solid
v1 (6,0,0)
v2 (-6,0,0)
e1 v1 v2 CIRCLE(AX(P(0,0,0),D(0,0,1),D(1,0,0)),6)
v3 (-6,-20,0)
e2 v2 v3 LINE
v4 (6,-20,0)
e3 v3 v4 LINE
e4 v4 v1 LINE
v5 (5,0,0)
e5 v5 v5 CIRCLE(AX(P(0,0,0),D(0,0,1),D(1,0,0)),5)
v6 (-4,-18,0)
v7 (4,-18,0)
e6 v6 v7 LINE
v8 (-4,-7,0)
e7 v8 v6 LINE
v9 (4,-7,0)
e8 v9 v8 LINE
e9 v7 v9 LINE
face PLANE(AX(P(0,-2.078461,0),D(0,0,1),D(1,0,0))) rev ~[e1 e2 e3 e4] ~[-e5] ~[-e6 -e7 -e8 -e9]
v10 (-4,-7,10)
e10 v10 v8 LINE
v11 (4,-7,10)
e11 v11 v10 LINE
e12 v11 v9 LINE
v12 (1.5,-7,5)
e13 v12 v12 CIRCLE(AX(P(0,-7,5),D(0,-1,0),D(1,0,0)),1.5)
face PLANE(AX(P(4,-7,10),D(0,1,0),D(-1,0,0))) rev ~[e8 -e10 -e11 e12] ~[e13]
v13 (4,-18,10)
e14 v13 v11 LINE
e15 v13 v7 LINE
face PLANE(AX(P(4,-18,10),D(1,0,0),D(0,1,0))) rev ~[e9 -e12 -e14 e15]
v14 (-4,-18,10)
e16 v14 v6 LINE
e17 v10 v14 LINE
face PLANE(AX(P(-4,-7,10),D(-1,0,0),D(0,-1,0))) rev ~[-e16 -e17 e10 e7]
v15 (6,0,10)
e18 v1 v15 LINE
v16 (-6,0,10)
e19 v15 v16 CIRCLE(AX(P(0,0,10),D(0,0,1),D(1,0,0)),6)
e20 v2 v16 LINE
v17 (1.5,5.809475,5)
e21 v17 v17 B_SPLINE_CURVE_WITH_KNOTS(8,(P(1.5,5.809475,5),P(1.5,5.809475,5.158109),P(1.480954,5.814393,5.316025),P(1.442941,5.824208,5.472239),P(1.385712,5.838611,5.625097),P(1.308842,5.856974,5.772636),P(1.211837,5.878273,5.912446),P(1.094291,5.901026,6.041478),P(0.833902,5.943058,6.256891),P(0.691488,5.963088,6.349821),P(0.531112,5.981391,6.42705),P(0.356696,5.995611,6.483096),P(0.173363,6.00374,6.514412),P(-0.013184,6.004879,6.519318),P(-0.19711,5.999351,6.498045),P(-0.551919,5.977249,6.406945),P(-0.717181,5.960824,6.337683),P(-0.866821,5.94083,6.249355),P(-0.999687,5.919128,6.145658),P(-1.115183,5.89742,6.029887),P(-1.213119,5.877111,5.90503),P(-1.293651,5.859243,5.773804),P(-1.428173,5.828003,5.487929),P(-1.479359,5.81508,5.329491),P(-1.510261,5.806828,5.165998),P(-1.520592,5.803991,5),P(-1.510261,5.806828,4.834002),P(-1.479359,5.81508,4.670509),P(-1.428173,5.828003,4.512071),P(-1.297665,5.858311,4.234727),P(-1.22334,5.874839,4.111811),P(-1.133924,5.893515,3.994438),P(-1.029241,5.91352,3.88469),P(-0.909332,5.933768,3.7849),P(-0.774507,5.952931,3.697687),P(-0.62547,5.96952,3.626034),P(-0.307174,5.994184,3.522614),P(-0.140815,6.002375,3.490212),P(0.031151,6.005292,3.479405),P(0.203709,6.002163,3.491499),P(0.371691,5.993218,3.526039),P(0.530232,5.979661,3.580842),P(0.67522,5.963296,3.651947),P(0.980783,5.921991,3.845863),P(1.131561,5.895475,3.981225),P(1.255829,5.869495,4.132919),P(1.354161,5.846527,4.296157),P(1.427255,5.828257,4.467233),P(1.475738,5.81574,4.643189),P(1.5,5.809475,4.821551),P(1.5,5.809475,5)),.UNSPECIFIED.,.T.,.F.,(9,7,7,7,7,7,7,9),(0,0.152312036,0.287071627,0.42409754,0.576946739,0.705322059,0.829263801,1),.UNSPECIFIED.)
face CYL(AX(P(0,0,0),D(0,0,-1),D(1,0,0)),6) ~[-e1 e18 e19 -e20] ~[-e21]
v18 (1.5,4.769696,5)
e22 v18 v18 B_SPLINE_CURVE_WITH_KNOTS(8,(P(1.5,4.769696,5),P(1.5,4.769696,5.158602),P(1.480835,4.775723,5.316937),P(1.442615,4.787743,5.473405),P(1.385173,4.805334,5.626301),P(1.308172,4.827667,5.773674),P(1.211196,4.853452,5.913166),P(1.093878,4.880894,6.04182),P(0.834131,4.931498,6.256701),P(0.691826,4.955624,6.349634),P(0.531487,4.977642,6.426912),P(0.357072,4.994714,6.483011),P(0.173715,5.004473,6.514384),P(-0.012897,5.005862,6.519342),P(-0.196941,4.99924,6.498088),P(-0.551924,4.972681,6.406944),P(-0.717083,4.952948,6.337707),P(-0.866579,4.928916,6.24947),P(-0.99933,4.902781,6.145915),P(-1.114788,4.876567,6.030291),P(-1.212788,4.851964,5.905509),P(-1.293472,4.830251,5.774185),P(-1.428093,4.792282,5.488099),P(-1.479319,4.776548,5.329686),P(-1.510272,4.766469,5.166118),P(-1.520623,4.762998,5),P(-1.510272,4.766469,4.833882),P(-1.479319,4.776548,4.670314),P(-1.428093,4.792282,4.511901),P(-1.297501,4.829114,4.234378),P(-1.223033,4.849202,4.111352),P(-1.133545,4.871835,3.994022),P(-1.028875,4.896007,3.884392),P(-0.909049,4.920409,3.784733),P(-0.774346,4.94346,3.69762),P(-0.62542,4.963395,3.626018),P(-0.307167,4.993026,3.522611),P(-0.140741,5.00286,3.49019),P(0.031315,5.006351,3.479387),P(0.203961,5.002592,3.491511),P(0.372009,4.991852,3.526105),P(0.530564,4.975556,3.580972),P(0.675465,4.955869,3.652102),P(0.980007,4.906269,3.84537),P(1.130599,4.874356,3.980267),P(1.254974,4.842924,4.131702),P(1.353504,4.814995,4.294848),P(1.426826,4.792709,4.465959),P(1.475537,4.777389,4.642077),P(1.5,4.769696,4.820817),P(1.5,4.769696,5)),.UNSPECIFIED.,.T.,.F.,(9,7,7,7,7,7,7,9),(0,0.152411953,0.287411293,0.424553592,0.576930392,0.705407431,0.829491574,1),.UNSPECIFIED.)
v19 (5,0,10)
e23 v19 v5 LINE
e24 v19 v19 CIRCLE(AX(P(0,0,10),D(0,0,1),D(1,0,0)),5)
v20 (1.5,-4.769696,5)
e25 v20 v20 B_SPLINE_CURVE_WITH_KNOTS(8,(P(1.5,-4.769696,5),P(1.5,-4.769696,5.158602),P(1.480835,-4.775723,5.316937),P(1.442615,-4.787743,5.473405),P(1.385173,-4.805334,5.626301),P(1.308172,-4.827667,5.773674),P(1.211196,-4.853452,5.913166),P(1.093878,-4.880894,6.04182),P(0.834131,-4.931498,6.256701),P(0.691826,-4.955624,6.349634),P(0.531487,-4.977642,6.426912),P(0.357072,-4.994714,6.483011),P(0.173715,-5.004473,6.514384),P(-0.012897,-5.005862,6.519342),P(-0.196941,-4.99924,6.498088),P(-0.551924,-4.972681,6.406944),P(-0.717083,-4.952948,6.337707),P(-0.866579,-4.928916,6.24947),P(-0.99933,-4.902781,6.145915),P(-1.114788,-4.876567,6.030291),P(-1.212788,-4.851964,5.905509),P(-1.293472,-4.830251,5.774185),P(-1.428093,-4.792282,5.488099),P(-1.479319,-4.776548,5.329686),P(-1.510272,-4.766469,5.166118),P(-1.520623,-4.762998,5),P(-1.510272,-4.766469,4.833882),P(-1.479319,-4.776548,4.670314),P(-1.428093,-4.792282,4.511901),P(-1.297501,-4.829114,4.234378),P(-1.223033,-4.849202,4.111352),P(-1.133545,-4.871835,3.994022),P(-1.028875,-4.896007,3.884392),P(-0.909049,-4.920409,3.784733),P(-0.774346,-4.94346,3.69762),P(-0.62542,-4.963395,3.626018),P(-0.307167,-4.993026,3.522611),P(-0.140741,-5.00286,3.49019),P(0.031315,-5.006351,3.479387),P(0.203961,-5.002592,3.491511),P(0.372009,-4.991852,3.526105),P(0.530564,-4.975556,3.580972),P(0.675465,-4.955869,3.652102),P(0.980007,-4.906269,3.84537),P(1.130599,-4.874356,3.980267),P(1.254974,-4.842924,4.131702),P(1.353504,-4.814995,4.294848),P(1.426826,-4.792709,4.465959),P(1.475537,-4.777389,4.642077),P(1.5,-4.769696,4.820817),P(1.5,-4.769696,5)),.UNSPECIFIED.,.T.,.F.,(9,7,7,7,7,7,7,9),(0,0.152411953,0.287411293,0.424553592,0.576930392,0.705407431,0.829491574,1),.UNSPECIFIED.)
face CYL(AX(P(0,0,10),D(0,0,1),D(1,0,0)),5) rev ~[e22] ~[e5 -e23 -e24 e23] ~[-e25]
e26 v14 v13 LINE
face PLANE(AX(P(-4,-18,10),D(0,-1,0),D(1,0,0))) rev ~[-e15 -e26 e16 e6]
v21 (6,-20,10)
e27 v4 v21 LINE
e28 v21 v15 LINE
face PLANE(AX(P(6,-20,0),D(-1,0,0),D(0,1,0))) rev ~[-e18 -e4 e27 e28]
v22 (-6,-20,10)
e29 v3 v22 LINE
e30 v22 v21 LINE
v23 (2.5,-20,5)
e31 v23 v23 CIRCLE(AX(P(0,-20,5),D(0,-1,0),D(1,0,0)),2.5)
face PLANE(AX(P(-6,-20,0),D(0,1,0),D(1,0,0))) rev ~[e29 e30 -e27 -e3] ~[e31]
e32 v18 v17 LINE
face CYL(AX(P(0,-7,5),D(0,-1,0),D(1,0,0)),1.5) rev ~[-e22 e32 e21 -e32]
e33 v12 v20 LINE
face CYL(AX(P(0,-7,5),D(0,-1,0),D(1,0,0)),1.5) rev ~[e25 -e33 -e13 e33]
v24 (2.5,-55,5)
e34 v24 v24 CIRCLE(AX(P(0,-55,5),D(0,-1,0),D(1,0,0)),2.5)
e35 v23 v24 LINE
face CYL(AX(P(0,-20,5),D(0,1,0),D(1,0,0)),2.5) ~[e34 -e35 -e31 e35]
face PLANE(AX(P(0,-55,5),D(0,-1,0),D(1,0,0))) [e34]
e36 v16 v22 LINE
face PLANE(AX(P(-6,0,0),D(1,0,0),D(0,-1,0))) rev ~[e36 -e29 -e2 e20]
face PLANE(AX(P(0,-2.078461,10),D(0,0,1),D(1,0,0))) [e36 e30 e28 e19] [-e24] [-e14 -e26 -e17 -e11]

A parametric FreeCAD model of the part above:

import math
import FreeCAD as App
import Part
import Sketcher

V = App.Vector

doc = App.newDocument("Part")
body = doc.addObject("PartDesign::Body", "Body")

sketch1 = body.newObject("Sketcher::SketchObject", "Sketch")
sketch1.AttachmentSupport = (doc.getObject("XY_Plane"), [""])
sketch1.MapMode = "FlatFace"
sketch1.addGeometry([
    Part.ArcOfCircle(Part.Circle(V(0, 0, 0), V(0, 0, 1), 6), math.radians(0), math.radians(180)),
    Part.LineSegment(V(-6, 0, 0), V(-6, -20, 0)),
    Part.LineSegment(V(-6, -20, 0), V(6, -20, 0)),
    Part.LineSegment(V(6, -20, 0), V(6, 0, 0)),
], False)
sketch1.addConstraint([
    Sketcher.Constraint("Tangent", 0, 2, 1, 1),
    Sketcher.Constraint("Coincident", 1, 2, 2, 1),
    Sketcher.Constraint("Coincident", 2, 2, 3, 1),
    Sketcher.Constraint("Tangent", 3, 2, 0, 1),
    Sketcher.Constraint("Vertical", 1),
    Sketcher.Constraint("Horizontal", 2),
    Sketcher.Constraint("Vertical", 3),
    Sketcher.Constraint("Coincident", 0, 3, -1, 1),
    Sketcher.Constraint("Radius", 0, 6.0),
    Sketcher.Constraint("DistanceY", 1, 2, 1, 1, 20.0),
])
pad1 = body.newObject("PartDesign::Pad", "Pad")
pad1.Profile = sketch1
pad1.Length = 10

sketch2 = body.newObject("Sketcher::SketchObject", "Sketch001")
sketch2.AttachmentSupport = (doc.getObject("XY_Plane"), [""])
sketch2.MapMode = "FlatFace"
sketch2.AttachmentOffset = App.Placement(V(0, 0, 10), App.Rotation())
sketch2.addGeometry(Part.Circle(V(0, 0, 0), V(0, 0, 1), 5), False)
sketch2.addConstraint([
    Sketcher.Constraint("Coincident", 0, 3, -1, 1),
    Sketcher.Constraint("Diameter", 0, 10.0),
])
pocket1 = body.newObject("PartDesign::Pocket", "Pocket")
pocket1.Profile = sketch2
pocket1.Length = 25

sketch3 = body.newObject("Sketcher::SketchObject", "Sketch002")
sketch3.AttachmentSupport = (doc.getObject("XY_Plane"), [""])
sketch3.MapMode = "FlatFace"
sketch3.AttachmentOffset = App.Placement(V(0, 0, 10), App.Rotation())
sketch3.addGeometry([
    Part.LineSegment(V(-4, -7, 0), V(-4, -18, 0)),
    Part.LineSegment(V(-4, -18, 0), V(4, -18, 0)),
    Part.LineSegment(V(4, -18, 0), V(4, -7, 0)),
    Part.LineSegment(V(4, -7, 0), V(-4, -7, 0)),
], False)
sketch3.addConstraint([
    Sketcher.Constraint("Coincident", 0, 2, 1, 1),
    Sketcher.Constraint("Coincident", 1, 2, 2, 1),
    Sketcher.Constraint("Coincident", 2, 2, 3, 1),
    Sketcher.Constraint("Coincident", 3, 2, 0, 1),
    Sketcher.Constraint("Vertical", 0),
    Sketcher.Constraint("Horizontal", 1),
    Sketcher.Constraint("Vertical", 2),
    Sketcher.Constraint("Horizontal", 3),
    Sketcher.Constraint("DistanceX", 1, 1, 1, 2, 8.0),
    Sketcher.Constraint("DistanceY", 0, 2, 0, 1, 11.0),
    Sketcher.Constraint("DistanceX", 0, 2, -1, 1, 4.0),
    Sketcher.Constraint("DistanceY", 0, 2, -1, 1, 18.0),
])
pocket2 = body.newObject("PartDesign::Pocket", "Pocket001")
pocket2.Profile = sketch3
pocket2.Length = 25

sketch4 = body.newObject("Sketcher::SketchObject", "Sketch003")
sketch4.AttachmentSupport = (doc.getObject("XZ_Plane"), [""])
sketch4.MapMode = "FlatFace"
sketch4.AttachmentOffset = App.Placement(V(0, 0, 7), App.Rotation())
sketch4.addGeometry(Part.Circle(V(0, 5, 0), V(0, 0, 1), 1.5), False)
sketch4.addConstraint([
    Sketcher.Constraint("PointOnObject", 0, 3, -2),
    Sketcher.Constraint("Diameter", 0, 3.0),
    Sketcher.Constraint("DistanceY", -1, 1, 0, 3, 5.0),
])
pocket3 = body.newObject("PartDesign::Pocket", "Pocket002")
pocket3.Profile = sketch4
pocket3.Length = 25

sketch5 = body.newObject("Sketcher::SketchObject", "Sketch004")
sketch5.AttachmentSupport = (doc.getObject("XZ_Plane"), [""])
sketch5.MapMode = "FlatFace"
sketch5.AttachmentOffset = App.Placement(V(0, 0, 20), App.Rotation())
sketch5.addGeometry(Part.Circle(V(0, 5, 0), V(0, 0, 1), 2.5), False)
sketch5.addConstraint([
    Sketcher.Constraint("PointOnObject", 0, 3, -2),
    Sketcher.Constraint("Diameter", 0, 5.0),
    Sketcher.Constraint("DistanceY", -1, 1, 0, 3, 5.0),
])
pad2 = body.newObject("PartDesign::Pad", "Pad001")
pad2.Profile = sketch5
pad2.Length = 35

doc.recompute()
